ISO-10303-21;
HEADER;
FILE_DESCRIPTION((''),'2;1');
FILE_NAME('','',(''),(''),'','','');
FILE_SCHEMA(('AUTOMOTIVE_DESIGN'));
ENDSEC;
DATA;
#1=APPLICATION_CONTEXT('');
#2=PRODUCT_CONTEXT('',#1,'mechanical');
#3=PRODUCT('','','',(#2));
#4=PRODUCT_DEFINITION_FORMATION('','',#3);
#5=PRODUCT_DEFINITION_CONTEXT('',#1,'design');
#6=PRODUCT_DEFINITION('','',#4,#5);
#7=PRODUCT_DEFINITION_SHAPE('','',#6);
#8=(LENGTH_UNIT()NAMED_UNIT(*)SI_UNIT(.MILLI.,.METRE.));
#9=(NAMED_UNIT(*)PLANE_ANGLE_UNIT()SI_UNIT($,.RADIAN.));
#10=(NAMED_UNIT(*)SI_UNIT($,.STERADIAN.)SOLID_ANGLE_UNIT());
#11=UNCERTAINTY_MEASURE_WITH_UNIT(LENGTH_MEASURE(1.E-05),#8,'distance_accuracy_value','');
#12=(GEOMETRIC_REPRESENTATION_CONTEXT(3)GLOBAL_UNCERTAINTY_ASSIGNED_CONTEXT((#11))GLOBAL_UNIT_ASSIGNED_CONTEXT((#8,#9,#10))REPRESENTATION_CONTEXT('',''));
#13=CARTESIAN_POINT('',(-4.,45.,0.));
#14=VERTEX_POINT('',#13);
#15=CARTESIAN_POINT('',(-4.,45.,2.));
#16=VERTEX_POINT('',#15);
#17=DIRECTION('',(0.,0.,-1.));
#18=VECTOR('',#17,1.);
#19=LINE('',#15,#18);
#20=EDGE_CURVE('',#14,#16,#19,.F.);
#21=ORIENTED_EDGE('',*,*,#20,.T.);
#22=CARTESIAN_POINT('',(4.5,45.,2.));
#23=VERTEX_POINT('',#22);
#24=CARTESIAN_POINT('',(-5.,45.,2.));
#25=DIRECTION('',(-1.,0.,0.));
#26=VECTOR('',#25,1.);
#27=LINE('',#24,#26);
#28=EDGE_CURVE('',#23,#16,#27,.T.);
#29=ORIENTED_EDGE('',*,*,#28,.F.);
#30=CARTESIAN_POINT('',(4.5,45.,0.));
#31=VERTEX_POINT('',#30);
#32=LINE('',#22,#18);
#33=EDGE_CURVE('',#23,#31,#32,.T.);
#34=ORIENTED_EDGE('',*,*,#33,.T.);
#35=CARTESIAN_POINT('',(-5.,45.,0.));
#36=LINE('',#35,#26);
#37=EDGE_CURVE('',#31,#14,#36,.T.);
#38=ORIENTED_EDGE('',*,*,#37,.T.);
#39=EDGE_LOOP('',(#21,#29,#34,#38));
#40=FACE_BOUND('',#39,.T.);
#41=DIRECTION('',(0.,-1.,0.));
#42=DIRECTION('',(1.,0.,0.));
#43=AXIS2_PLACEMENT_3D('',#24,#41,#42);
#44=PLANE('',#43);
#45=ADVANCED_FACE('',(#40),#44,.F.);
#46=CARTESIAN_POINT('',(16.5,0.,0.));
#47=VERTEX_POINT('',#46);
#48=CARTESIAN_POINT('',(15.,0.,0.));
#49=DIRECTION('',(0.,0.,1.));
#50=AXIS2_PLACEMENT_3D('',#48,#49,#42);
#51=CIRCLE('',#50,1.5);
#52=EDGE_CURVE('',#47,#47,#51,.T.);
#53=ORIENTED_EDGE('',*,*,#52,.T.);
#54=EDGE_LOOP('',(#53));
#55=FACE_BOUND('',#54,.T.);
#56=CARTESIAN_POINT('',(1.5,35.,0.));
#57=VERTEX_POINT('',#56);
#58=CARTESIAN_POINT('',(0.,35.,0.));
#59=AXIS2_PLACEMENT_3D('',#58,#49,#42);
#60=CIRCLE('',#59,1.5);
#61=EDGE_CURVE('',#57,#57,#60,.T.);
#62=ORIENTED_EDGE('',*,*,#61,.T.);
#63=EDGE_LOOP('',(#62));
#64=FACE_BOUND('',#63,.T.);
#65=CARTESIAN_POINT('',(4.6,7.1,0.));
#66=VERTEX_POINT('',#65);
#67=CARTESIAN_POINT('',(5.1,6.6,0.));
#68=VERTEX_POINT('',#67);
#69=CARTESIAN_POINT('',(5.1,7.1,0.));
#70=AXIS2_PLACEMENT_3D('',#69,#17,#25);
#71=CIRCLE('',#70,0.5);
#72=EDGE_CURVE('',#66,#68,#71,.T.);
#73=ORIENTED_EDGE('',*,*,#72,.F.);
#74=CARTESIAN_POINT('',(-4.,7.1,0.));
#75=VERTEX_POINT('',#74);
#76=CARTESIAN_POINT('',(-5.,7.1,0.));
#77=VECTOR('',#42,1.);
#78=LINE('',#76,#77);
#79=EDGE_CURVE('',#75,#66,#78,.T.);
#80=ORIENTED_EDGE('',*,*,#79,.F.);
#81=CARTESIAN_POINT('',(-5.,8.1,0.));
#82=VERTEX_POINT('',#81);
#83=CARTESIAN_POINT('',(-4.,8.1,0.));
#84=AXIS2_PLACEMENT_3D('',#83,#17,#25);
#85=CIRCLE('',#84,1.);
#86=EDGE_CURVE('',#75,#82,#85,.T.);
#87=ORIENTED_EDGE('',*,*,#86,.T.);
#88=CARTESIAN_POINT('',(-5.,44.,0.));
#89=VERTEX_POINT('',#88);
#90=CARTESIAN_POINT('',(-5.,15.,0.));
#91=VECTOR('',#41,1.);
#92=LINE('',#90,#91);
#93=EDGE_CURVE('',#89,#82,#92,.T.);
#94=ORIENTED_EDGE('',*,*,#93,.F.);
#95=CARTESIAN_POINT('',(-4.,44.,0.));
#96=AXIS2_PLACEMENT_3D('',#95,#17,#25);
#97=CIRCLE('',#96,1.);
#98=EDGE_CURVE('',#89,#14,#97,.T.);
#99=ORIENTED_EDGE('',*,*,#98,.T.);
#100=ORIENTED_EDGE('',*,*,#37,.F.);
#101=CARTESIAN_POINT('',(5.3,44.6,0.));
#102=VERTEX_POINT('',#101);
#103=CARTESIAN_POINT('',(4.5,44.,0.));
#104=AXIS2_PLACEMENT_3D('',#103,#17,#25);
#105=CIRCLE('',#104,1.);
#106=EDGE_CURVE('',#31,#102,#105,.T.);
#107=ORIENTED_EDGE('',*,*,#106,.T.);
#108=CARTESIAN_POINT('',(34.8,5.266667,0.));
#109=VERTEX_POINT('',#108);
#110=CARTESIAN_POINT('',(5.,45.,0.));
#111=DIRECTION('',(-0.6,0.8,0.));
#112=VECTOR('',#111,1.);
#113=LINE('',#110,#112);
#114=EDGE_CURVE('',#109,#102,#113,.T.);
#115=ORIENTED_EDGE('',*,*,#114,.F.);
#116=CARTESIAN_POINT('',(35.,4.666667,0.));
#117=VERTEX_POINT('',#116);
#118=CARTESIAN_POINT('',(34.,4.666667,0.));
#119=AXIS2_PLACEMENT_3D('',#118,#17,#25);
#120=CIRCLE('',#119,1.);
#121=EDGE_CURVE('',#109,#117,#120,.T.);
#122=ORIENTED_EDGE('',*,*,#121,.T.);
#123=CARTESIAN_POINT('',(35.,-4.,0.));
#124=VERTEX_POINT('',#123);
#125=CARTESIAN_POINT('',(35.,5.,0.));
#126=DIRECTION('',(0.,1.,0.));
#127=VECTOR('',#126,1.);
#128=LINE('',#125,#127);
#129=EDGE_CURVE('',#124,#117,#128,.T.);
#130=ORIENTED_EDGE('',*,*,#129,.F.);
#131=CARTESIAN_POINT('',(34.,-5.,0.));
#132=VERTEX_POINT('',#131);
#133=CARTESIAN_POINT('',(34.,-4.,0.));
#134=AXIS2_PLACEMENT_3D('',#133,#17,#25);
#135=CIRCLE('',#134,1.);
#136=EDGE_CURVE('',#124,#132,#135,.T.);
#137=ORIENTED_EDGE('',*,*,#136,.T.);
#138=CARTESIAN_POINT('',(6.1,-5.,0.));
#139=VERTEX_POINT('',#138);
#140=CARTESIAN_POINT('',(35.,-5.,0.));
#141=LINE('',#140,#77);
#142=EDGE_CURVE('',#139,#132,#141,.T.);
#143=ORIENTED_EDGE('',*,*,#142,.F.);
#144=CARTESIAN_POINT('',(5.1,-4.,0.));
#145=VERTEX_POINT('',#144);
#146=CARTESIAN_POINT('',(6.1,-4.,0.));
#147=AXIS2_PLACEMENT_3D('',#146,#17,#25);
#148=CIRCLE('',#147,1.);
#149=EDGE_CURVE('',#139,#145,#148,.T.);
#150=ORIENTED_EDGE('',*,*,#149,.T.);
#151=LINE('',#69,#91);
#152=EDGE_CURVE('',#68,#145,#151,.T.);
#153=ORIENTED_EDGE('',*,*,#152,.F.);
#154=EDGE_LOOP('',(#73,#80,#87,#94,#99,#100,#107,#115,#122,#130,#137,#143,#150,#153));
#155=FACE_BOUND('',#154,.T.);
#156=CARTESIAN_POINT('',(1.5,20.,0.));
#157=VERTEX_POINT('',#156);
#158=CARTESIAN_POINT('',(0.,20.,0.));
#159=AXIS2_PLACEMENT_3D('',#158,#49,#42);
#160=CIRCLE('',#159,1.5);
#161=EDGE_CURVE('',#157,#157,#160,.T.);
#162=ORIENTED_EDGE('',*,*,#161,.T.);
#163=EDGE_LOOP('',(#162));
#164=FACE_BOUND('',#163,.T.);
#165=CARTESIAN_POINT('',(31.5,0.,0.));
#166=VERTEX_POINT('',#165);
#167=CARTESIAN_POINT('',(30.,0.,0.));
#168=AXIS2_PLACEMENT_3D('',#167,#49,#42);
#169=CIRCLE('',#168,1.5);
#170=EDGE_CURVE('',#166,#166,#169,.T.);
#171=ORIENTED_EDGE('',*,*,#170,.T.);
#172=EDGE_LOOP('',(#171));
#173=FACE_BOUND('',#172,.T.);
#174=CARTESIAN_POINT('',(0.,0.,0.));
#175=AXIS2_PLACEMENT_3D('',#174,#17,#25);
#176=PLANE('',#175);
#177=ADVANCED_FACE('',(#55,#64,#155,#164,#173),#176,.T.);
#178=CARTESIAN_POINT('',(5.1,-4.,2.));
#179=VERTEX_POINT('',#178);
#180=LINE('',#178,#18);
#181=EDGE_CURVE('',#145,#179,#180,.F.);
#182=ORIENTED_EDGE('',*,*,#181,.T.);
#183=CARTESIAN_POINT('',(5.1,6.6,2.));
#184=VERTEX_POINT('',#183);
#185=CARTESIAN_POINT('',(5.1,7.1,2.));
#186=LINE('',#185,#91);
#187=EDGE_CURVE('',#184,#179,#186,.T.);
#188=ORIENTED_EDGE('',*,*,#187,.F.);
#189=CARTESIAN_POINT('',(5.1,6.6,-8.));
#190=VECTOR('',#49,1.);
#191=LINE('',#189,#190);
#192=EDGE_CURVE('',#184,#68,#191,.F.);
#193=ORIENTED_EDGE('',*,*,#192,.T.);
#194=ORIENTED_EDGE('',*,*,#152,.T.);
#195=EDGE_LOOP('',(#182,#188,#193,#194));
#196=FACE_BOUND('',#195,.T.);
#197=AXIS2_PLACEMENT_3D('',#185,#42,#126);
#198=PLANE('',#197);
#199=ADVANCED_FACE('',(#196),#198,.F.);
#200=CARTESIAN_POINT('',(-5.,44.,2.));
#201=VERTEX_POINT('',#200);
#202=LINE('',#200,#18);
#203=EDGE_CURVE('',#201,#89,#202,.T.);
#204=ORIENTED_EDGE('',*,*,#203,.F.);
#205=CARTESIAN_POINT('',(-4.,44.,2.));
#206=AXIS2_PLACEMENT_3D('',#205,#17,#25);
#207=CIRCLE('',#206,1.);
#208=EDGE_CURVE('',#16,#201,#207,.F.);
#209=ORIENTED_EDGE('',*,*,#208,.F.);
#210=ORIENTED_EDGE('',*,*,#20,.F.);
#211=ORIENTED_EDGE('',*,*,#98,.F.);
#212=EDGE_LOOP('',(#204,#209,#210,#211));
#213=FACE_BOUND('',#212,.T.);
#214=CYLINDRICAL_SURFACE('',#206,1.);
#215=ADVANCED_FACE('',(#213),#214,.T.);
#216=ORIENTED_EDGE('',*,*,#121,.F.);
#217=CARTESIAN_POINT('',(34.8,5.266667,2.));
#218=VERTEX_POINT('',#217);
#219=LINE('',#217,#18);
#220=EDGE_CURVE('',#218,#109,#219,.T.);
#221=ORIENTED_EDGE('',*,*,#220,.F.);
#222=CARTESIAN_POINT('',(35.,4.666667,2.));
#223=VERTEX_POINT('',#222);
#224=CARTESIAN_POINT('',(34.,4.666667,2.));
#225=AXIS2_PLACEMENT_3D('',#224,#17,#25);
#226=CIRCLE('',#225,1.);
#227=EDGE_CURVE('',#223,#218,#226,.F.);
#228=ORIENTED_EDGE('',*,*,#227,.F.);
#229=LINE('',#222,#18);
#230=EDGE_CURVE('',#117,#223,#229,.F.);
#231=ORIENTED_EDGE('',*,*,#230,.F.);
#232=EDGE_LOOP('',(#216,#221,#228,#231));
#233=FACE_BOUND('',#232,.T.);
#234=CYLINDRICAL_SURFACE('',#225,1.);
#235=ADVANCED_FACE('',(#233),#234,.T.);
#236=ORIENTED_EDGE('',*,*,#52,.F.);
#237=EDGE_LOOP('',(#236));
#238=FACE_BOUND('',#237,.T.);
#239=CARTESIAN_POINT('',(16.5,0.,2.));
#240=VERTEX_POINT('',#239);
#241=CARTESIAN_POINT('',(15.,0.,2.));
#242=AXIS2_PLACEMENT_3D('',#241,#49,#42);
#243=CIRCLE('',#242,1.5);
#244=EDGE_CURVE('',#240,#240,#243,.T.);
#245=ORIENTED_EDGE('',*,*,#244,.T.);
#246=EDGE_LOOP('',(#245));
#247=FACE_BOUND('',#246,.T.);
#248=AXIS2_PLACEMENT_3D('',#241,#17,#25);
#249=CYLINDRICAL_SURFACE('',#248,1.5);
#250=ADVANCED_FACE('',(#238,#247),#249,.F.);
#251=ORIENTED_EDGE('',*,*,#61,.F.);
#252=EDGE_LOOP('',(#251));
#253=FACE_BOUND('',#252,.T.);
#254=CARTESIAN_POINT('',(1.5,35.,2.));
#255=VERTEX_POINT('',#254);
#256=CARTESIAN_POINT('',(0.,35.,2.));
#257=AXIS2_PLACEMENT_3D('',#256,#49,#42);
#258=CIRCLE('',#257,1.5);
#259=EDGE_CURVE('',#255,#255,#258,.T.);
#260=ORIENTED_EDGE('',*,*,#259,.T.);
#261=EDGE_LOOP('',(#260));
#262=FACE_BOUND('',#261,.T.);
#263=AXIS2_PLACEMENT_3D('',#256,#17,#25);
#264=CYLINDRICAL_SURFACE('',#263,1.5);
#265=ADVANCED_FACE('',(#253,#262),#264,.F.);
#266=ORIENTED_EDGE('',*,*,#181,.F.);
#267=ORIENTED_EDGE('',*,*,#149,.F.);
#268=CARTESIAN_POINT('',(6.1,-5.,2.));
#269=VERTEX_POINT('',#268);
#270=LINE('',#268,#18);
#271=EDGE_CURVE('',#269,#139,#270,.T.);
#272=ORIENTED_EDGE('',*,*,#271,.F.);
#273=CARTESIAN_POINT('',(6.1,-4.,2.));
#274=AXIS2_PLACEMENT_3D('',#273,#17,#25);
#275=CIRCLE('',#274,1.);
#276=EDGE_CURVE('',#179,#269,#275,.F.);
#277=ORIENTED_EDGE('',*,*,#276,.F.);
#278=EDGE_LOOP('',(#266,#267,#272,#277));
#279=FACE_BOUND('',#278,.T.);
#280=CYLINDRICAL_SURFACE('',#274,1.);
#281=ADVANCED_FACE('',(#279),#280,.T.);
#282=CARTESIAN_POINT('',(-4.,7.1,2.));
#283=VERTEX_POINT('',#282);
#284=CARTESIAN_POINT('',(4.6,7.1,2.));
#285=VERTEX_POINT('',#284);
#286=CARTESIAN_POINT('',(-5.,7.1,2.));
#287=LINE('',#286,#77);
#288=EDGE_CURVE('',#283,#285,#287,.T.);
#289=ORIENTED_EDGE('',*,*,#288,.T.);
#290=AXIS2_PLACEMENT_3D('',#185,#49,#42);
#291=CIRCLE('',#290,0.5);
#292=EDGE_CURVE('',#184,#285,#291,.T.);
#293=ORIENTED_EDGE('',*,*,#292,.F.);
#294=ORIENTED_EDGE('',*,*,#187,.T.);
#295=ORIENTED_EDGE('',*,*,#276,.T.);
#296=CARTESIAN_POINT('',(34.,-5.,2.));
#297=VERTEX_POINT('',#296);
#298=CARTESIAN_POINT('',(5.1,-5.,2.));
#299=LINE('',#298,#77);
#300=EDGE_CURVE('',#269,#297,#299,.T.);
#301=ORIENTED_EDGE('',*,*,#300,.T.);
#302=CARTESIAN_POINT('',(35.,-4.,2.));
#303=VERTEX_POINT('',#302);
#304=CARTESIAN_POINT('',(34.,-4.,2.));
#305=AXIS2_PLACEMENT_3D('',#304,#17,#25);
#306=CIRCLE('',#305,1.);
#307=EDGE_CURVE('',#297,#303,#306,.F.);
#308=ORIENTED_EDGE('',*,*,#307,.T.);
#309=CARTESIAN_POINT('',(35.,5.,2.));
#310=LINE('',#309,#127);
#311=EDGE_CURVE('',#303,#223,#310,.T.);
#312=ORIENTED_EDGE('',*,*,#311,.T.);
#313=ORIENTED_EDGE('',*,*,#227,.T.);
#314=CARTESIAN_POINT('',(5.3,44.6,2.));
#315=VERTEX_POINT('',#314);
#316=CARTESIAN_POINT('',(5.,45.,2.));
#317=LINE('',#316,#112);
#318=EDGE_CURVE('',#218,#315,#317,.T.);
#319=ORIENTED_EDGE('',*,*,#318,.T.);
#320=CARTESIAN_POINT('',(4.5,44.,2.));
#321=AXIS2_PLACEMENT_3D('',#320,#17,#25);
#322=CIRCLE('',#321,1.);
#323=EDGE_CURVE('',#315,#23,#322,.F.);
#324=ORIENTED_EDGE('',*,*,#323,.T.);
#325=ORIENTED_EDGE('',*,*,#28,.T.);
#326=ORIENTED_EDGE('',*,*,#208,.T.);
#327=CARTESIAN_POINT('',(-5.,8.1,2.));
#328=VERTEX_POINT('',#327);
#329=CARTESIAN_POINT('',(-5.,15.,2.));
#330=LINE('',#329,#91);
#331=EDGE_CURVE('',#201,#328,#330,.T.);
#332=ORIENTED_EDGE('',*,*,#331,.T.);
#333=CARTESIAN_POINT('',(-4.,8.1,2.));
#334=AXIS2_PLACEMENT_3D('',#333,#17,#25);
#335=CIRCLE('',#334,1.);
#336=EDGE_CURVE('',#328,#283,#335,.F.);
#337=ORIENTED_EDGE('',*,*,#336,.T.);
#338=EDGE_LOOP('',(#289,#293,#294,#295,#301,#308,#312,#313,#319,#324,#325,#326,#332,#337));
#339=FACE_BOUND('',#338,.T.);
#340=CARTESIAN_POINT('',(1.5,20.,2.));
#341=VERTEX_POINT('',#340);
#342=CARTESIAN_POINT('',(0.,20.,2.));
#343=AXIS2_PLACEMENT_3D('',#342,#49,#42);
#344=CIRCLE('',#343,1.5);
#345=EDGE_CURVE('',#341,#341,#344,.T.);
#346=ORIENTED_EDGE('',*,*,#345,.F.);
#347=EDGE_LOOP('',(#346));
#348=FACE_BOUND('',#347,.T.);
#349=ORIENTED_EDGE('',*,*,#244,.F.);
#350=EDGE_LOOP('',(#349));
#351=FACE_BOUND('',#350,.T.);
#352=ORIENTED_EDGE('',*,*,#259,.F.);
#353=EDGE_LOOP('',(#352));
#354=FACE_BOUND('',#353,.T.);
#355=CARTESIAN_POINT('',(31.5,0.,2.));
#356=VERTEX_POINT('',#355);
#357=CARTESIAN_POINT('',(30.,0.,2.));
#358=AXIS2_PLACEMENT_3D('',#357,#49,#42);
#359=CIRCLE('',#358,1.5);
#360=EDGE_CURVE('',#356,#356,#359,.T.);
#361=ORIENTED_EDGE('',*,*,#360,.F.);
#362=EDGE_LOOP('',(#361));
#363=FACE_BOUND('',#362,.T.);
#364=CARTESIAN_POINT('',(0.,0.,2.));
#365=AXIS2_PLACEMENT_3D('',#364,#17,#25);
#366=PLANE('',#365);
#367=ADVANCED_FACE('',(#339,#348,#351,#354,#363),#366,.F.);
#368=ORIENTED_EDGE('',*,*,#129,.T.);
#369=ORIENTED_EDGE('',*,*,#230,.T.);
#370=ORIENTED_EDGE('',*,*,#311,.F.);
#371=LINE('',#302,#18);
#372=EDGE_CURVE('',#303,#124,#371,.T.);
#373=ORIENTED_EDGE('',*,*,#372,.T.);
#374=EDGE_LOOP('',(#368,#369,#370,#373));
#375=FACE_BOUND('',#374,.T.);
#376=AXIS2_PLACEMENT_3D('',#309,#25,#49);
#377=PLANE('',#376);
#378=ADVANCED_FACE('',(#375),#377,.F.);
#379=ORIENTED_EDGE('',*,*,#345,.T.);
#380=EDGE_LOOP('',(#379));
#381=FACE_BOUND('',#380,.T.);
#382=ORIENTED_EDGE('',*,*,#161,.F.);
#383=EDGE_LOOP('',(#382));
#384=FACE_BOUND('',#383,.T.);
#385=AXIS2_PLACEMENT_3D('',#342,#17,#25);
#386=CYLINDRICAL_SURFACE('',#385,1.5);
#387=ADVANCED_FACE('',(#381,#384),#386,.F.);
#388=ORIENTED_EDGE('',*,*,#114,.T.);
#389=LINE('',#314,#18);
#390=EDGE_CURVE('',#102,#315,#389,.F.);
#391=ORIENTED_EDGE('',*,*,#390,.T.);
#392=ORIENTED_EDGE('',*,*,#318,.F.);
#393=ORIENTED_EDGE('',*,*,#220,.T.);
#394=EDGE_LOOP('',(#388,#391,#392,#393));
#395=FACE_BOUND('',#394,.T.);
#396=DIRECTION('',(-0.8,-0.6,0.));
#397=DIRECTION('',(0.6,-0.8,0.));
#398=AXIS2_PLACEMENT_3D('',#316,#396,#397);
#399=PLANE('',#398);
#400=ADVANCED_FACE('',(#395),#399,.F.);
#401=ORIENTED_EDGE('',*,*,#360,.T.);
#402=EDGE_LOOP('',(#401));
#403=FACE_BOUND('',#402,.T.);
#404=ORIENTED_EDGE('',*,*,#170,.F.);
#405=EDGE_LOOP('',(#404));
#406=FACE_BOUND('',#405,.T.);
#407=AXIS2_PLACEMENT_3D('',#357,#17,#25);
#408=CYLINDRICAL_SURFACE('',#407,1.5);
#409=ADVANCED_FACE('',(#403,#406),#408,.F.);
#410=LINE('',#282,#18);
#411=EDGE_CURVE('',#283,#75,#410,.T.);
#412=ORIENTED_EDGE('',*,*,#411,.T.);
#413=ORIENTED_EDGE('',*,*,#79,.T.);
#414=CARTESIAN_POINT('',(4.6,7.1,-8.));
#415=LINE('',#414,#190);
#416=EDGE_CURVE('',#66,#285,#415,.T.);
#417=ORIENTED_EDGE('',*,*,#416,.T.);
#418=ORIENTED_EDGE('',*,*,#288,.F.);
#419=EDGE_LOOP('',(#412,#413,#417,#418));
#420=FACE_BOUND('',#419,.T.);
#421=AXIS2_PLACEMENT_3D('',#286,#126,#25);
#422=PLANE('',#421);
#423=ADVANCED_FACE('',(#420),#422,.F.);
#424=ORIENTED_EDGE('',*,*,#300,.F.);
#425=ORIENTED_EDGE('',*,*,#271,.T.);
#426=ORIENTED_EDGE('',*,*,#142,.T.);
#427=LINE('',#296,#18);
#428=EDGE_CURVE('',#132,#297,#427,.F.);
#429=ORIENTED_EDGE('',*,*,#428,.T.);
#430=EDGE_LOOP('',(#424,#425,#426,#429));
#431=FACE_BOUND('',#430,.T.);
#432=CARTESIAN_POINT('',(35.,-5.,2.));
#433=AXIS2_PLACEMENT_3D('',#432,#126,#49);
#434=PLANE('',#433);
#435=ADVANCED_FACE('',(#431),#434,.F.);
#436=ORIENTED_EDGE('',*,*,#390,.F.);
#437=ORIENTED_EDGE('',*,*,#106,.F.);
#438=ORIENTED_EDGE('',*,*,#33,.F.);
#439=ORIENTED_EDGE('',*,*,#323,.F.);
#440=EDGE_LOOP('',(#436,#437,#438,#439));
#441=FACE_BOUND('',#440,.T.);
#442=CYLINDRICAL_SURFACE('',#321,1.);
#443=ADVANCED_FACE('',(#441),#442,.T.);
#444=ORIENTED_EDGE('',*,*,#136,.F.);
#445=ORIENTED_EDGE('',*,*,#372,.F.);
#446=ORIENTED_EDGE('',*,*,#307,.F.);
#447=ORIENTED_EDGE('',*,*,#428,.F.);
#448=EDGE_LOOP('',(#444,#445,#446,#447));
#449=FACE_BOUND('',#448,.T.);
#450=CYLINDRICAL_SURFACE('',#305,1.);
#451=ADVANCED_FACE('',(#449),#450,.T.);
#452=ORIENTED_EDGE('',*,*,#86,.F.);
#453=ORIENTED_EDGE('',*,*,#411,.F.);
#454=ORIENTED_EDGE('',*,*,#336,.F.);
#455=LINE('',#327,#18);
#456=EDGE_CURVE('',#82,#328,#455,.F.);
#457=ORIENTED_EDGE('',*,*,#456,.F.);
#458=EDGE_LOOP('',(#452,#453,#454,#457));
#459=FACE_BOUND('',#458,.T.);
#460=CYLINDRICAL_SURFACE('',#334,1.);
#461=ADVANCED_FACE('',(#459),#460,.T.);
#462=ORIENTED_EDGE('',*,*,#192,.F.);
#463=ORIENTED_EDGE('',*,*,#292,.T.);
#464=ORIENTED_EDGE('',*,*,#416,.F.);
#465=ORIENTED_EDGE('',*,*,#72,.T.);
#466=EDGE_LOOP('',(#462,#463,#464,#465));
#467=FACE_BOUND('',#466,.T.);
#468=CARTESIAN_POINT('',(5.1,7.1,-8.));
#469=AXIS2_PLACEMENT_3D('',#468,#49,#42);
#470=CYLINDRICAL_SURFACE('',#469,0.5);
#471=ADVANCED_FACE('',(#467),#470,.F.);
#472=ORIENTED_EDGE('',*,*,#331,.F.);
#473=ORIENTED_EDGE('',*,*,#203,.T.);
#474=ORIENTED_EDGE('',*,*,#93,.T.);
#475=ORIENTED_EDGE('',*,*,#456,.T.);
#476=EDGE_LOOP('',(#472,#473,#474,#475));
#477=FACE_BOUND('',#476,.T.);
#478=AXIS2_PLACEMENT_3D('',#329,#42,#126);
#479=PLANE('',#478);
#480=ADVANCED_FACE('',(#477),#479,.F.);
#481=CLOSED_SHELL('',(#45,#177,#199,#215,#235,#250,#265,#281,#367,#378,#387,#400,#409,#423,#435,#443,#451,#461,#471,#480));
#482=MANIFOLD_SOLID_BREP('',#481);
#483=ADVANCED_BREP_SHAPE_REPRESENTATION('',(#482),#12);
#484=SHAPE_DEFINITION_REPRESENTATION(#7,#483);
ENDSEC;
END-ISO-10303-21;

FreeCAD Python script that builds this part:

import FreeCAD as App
import Part
import Sketcher

V = App.Vector
Q = App.Units.Quantity


def edges_at(feature, points):
    """Names of the edges that pass closest to the given points."""
    edges = feature.Shape.Edges
    near = lambda p: min(range(len(edges)), key=lambda i: edges[i].distToShape(Part.Vertex(*p))[0])
    return sorted({f"Edge{near(p) + 1}" for p in points})


def add_polygon(sketch, points):
    """Adds a closed chain of lines whose ends are joined by coincident constraints."""
    first, n = sketch.GeometryCount, len(points)
    for a, b in zip(points, points[1:] + points[:1]):
        sketch.addGeometry(Part.LineSegment(App.Vector(*a, 0), App.Vector(*b, 0)), False)
    for i in range(n):
        sketch.addConstraint(Sketcher.Constraint("Coincident", first + i, 2, first + (i + 1) % n, 1))

doc = App.newDocument("Part")
body = doc.addObject("PartDesign::Body", "Body")

# Sketch on XY plane
sketch1 = body.newObject("Sketcher::SketchObject", "Sketch")
sketch1.AttachmentSupport = (doc.getObject("XY_Plane"), [""])
sketch1.MapMode = "FlatFace"
add_polygon(sketch1, [(5, 45), (-5, 45), (-5, 7.1), (5.1, 7.1), (5.1, -5), (35, -5), (35, 5)])  # lines 0-6
sketch1.addGeometry(Part.Circle(V(15, 0, 0), V(0, 0, 1), 1.5), False)  # 7
sketch1.addGeometry(Part.Circle(V(30, 0, 0), V(0, 0, 1), 1.5), False)  # 8
sketch1.addGeometry(Part.Circle(V(0, 20, 0), V(0, 0, 1), 1.5), False)  # 9
sketch1.addGeometry(Part.Circle(V(0, 35, 0), V(0, 0, 1), 1.5), False)  # 10
sketch1.addConstraint([
    Sketcher.Constraint("Horizontal", 0),
    Sketcher.Constraint("Vertical", 1),
    Sketcher.Constraint("Horizontal", 2),
    Sketcher.Constraint("Vertical", 3),
    Sketcher.Constraint("Horizontal", 4),
    Sketcher.Constraint("Vertical", 5),
    Sketcher.Constraint("Equal", 7, 8),
    Sketcher.Constraint("Equal", 8, 9),
    Sketcher.Constraint("Equal", 9, 10),
    Sketcher.Constraint("PointOnObject", 7, 3, -1),
    Sketcher.Constraint("PointOnObject", 8, 3, -1),
    Sketcher.Constraint("PointOnObject", 9, 3, -2),
    Sketcher.Constraint("PointOnObject", 10, 3, -2),
    Sketcher.Constraint("Equal", 0, 5),
    Sketcher.Constraint("Diameter", 7, Q("3 mm")),
    Sketcher.Constraint("DistanceX", 0, 2, 0, 1, Q("10 mm")),
    Sketcher.Constraint("Distance", 6, Q("50 mm")),
    Sketcher.Constraint("DistanceX", 2, 1, 2, 2, Q("10.1 mm")),
    Sketcher.Constraint("DistanceX", 4, 1, 4, 2, Q("29.9 mm")),
    Sketcher.Constraint("DistanceY", 1, 2, 1, 1, Q("37.9 mm")),
    Sketcher.Constraint("DistanceX", -1, 1, 7, 3, Q("15 mm")),
    Sketcher.Constraint("DistanceX", -1, 1, 8, 3, Q("30 mm")),
    Sketcher.Constraint("DistanceY", -1, 1, 9, 3, Q("20 mm")),
    Sketcher.Constraint("DistanceY", -1, 1, 10, 3, Q("35 mm")),
    Sketcher.Constraint("DistanceX", 0, 2, -1, 1, Q("5 mm")),
    Sketcher.Constraint("DistanceY", -1, 1, 0, 2, Q("45 mm")),
])
pad1 = body.newObject("PartDesign::Pad", "Pad")
pad1.Profile = sketch1
pad1.Length = 2

# Sketch on XY plane
sketch2 = body.newObject("Sketcher::SketchObject", "Sketch001")
sketch2.AttachmentSupport = (doc.getObject("XY_Plane"), [""])
sketch2.MapMode = "FlatFace"
sketch2.AttachmentOffset = App.Placement(V(0, 0, 2), App.Rotation())
sketch2.addGeometry(Part.Circle(V(5.1, 7.1, 0), V(0, 0, 1), 0.5), False)
sketch2.addConstraint([
    Sketcher.Constraint("Diameter", 0, Q("1 mm")),
    Sketcher.Constraint("DistanceX", -1, 1, 0, 3, Q("5.1 mm")),
    Sketcher.Constraint("DistanceY", -1, 1, 0, 3, Q("7.1 mm")),
])
pocket1 = body.newObject("PartDesign::Pocket", "Pocket")
pocket1.Profile = sketch2
pocket1.Length = 10
doc.recompute()

fillet = body.newObject("PartDesign::Fillet", "Fillet")
fillet.Base = (pocket1, edges_at(pocket1, [
    (-5, 45, 1),
    (5, 45, 1),
    (35, 5, 1),
    (35, -5, 1),
    (5.1, -5, 1),
    (-5, 7.1, 1),
]))
fillet.Radius = 1

doc.recompute()
